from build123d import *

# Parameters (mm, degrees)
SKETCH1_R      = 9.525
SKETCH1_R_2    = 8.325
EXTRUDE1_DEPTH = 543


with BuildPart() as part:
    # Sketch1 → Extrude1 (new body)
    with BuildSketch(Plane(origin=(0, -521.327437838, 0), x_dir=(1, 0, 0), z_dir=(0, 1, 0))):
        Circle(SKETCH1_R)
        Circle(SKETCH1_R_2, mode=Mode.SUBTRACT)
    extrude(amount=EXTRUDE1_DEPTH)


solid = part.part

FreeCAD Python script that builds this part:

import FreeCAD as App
import Part
import Sketcher
from FreeCAD import Vector
Q = App.Units.Quantity

doc = App.newDocument("Part")
body = doc.addObject("PartDesign::Body", "Body")

sketch1 = body.newObject("Sketcher::SketchObject", "Sketch")
sketch1.AttachmentSupport = (doc.getObject("XZ_Plane"), [""])
sketch1.MapMode = "FlatFace"
sketch1.AttachmentOffset = App.Placement(Vector(0, 0, 521.327438), App.Rotation())
sketch1.addGeometry(Part.Circle(Vector(0, 0, 0), Vector(0, 0, 1), 9.525), False)
sketch1.addGeometry(Part.Circle(Vector(0, 0, 0), Vector(0, 0, 1), 8.325), False)
sketch1.addConstraint(Sketcher.Constraint("Coincident", 0, 3, -1, 1))
sketch1.addConstraint(Sketcher.Constraint("Coincident", 1, 3, -1, 1))
sketch1.addConstraint(Sketcher.Constraint("Diameter", 0, Q("19.05 mm")))
sketch1.addConstraint(Sketcher.Constraint("Diameter", 1, Q("16.65 mm")))
pad1 = body.newObject("PartDesign::Pad", "Pad")
pad1.Profile = sketch1
pad1.Length = 543
pad1.Reversed = True

doc.recompute()
